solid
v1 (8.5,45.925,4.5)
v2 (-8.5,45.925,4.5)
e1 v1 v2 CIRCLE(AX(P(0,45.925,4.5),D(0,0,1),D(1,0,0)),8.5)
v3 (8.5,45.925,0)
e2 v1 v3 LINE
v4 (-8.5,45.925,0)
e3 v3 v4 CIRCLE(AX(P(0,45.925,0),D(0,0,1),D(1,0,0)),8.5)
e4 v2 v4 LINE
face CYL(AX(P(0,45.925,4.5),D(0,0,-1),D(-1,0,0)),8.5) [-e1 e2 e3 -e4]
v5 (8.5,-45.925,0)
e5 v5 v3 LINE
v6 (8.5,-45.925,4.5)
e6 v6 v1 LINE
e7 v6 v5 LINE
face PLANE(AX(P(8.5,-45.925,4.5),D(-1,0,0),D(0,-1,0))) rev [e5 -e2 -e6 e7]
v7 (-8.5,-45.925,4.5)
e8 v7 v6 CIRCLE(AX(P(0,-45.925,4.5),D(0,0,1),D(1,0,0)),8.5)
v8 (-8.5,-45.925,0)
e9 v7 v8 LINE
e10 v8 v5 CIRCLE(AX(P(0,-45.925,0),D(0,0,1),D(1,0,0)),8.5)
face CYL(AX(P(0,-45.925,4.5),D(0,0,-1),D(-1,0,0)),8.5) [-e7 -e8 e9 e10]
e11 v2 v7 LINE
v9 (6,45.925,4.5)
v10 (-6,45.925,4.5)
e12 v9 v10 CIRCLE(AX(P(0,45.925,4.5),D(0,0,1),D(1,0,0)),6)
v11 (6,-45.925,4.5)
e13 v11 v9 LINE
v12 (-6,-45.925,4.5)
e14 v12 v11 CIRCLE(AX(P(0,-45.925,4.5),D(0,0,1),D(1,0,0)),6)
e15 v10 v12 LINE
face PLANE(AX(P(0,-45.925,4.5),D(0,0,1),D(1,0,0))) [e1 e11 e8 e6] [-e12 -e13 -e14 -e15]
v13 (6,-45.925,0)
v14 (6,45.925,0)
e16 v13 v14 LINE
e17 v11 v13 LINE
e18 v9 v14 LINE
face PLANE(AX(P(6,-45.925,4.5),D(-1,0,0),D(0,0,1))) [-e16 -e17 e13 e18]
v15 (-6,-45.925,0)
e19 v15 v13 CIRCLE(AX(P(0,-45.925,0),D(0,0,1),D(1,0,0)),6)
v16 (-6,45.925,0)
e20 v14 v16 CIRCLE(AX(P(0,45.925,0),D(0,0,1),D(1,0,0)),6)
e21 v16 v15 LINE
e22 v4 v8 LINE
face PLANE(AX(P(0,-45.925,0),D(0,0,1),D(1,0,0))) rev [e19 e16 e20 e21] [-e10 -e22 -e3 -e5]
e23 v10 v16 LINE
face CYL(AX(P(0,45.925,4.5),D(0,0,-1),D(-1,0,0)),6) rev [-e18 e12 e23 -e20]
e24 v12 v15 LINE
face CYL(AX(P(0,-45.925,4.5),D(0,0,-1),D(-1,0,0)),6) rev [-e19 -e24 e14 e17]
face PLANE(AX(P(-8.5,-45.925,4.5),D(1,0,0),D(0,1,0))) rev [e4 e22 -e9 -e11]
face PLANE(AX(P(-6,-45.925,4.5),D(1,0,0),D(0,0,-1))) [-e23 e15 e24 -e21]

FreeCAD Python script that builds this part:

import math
import FreeCAD as App
import Part
import Sketcher

doc = App.newDocument("Part")
body = doc.addObject("PartDesign::Body", "Body")

sketch1 = doc.addObject("Sketcher::SketchObject", "Sketch")
body.addObject(sketch1)
sketch1.AttachmentSupport = (doc.XY_Plane, [""])
sketch1.MapMode = "FlatFace"
sketch1.addGeometry([
    Part.LineSegment(App.Vector(-8, 46, 0), App.Vector(-8, -46, 0)),
    Part.ArcOfCircle(Part.Circle(App.Vector(0, -46, 0), App.Vector(0, 0, 1), 8), math.radians(180), math.radians(360)),
    Part.LineSegment(App.Vector(8, -46, 0), App.Vector(8, 46, 0)),
    Part.ArcOfCircle(Part.Circle(App.Vector(0, 46, 0), App.Vector(0, 0, 1), 8), math.radians(0), math.radians(180)),
    Part.LineSegment(App.Vector(-6, -46, 0), App.Vector(-6, 46, 0)),
    Part.ArcOfCircle(Part.Circle(App.Vector(0, 46, 0), App.Vector(0, 0, 1), 6), math.radians(0), math.radians(180)),
    Part.LineSegment(App.Vector(6, 46, 0), App.Vector(6, -46, 0)),
    Part.ArcOfCircle(Part.Circle(App.Vector(0, -46, 0), App.Vector(0, 0, 1), 6), math.radians(180), math.radians(360)),
], False)
sketch1.addConstraint([
    Sketcher.Constraint("Tangent", 0, 2, 1, 1),
    Sketcher.Constraint("Tangent", 1, 2, 2, 1),
    Sketcher.Constraint("Tangent", 2, 2, 3, 1),
    Sketcher.Constraint("Tangent", 3, 2, 0, 1),
    Sketcher.Constraint("Tangent", 4, 2, 5, 2),
    Sketcher.Constraint("Tangent", 5, 1, 6, 1),
    Sketcher.Constraint("Tangent", 6, 2, 7, 2),
    Sketcher.Constraint("Tangent", 7, 1, 4, 1),
    Sketcher.Constraint("Vertical", 0),
    Sketcher.Constraint("Vertical", 2),
    Sketcher.Constraint("Vertical", 4),
    Sketcher.Constraint("Vertical", 6),
    Sketcher.Constraint("Coincident", 5, 3, 3, 3),
    Sketcher.Constraint("Symmetric", 1, 3, 3, 3, -1, 1),
    Sketcher.Constraint("Horizontal", 7, 3, 0, 2),
    Sketcher.Constraint("Radius", 5, 6.0),
    Sketcher.Constraint("Radius", 1, 8.5),
    Sketcher.Constraint("DistanceY", 0, 2, 0, 1, 91.85),
])
pad1 = doc.addObject("PartDesign::Pad", "Pad")
body.addObject(pad1)
pad1.Profile = sketch1
pad1.Length = 4.5

doc.recompute()
